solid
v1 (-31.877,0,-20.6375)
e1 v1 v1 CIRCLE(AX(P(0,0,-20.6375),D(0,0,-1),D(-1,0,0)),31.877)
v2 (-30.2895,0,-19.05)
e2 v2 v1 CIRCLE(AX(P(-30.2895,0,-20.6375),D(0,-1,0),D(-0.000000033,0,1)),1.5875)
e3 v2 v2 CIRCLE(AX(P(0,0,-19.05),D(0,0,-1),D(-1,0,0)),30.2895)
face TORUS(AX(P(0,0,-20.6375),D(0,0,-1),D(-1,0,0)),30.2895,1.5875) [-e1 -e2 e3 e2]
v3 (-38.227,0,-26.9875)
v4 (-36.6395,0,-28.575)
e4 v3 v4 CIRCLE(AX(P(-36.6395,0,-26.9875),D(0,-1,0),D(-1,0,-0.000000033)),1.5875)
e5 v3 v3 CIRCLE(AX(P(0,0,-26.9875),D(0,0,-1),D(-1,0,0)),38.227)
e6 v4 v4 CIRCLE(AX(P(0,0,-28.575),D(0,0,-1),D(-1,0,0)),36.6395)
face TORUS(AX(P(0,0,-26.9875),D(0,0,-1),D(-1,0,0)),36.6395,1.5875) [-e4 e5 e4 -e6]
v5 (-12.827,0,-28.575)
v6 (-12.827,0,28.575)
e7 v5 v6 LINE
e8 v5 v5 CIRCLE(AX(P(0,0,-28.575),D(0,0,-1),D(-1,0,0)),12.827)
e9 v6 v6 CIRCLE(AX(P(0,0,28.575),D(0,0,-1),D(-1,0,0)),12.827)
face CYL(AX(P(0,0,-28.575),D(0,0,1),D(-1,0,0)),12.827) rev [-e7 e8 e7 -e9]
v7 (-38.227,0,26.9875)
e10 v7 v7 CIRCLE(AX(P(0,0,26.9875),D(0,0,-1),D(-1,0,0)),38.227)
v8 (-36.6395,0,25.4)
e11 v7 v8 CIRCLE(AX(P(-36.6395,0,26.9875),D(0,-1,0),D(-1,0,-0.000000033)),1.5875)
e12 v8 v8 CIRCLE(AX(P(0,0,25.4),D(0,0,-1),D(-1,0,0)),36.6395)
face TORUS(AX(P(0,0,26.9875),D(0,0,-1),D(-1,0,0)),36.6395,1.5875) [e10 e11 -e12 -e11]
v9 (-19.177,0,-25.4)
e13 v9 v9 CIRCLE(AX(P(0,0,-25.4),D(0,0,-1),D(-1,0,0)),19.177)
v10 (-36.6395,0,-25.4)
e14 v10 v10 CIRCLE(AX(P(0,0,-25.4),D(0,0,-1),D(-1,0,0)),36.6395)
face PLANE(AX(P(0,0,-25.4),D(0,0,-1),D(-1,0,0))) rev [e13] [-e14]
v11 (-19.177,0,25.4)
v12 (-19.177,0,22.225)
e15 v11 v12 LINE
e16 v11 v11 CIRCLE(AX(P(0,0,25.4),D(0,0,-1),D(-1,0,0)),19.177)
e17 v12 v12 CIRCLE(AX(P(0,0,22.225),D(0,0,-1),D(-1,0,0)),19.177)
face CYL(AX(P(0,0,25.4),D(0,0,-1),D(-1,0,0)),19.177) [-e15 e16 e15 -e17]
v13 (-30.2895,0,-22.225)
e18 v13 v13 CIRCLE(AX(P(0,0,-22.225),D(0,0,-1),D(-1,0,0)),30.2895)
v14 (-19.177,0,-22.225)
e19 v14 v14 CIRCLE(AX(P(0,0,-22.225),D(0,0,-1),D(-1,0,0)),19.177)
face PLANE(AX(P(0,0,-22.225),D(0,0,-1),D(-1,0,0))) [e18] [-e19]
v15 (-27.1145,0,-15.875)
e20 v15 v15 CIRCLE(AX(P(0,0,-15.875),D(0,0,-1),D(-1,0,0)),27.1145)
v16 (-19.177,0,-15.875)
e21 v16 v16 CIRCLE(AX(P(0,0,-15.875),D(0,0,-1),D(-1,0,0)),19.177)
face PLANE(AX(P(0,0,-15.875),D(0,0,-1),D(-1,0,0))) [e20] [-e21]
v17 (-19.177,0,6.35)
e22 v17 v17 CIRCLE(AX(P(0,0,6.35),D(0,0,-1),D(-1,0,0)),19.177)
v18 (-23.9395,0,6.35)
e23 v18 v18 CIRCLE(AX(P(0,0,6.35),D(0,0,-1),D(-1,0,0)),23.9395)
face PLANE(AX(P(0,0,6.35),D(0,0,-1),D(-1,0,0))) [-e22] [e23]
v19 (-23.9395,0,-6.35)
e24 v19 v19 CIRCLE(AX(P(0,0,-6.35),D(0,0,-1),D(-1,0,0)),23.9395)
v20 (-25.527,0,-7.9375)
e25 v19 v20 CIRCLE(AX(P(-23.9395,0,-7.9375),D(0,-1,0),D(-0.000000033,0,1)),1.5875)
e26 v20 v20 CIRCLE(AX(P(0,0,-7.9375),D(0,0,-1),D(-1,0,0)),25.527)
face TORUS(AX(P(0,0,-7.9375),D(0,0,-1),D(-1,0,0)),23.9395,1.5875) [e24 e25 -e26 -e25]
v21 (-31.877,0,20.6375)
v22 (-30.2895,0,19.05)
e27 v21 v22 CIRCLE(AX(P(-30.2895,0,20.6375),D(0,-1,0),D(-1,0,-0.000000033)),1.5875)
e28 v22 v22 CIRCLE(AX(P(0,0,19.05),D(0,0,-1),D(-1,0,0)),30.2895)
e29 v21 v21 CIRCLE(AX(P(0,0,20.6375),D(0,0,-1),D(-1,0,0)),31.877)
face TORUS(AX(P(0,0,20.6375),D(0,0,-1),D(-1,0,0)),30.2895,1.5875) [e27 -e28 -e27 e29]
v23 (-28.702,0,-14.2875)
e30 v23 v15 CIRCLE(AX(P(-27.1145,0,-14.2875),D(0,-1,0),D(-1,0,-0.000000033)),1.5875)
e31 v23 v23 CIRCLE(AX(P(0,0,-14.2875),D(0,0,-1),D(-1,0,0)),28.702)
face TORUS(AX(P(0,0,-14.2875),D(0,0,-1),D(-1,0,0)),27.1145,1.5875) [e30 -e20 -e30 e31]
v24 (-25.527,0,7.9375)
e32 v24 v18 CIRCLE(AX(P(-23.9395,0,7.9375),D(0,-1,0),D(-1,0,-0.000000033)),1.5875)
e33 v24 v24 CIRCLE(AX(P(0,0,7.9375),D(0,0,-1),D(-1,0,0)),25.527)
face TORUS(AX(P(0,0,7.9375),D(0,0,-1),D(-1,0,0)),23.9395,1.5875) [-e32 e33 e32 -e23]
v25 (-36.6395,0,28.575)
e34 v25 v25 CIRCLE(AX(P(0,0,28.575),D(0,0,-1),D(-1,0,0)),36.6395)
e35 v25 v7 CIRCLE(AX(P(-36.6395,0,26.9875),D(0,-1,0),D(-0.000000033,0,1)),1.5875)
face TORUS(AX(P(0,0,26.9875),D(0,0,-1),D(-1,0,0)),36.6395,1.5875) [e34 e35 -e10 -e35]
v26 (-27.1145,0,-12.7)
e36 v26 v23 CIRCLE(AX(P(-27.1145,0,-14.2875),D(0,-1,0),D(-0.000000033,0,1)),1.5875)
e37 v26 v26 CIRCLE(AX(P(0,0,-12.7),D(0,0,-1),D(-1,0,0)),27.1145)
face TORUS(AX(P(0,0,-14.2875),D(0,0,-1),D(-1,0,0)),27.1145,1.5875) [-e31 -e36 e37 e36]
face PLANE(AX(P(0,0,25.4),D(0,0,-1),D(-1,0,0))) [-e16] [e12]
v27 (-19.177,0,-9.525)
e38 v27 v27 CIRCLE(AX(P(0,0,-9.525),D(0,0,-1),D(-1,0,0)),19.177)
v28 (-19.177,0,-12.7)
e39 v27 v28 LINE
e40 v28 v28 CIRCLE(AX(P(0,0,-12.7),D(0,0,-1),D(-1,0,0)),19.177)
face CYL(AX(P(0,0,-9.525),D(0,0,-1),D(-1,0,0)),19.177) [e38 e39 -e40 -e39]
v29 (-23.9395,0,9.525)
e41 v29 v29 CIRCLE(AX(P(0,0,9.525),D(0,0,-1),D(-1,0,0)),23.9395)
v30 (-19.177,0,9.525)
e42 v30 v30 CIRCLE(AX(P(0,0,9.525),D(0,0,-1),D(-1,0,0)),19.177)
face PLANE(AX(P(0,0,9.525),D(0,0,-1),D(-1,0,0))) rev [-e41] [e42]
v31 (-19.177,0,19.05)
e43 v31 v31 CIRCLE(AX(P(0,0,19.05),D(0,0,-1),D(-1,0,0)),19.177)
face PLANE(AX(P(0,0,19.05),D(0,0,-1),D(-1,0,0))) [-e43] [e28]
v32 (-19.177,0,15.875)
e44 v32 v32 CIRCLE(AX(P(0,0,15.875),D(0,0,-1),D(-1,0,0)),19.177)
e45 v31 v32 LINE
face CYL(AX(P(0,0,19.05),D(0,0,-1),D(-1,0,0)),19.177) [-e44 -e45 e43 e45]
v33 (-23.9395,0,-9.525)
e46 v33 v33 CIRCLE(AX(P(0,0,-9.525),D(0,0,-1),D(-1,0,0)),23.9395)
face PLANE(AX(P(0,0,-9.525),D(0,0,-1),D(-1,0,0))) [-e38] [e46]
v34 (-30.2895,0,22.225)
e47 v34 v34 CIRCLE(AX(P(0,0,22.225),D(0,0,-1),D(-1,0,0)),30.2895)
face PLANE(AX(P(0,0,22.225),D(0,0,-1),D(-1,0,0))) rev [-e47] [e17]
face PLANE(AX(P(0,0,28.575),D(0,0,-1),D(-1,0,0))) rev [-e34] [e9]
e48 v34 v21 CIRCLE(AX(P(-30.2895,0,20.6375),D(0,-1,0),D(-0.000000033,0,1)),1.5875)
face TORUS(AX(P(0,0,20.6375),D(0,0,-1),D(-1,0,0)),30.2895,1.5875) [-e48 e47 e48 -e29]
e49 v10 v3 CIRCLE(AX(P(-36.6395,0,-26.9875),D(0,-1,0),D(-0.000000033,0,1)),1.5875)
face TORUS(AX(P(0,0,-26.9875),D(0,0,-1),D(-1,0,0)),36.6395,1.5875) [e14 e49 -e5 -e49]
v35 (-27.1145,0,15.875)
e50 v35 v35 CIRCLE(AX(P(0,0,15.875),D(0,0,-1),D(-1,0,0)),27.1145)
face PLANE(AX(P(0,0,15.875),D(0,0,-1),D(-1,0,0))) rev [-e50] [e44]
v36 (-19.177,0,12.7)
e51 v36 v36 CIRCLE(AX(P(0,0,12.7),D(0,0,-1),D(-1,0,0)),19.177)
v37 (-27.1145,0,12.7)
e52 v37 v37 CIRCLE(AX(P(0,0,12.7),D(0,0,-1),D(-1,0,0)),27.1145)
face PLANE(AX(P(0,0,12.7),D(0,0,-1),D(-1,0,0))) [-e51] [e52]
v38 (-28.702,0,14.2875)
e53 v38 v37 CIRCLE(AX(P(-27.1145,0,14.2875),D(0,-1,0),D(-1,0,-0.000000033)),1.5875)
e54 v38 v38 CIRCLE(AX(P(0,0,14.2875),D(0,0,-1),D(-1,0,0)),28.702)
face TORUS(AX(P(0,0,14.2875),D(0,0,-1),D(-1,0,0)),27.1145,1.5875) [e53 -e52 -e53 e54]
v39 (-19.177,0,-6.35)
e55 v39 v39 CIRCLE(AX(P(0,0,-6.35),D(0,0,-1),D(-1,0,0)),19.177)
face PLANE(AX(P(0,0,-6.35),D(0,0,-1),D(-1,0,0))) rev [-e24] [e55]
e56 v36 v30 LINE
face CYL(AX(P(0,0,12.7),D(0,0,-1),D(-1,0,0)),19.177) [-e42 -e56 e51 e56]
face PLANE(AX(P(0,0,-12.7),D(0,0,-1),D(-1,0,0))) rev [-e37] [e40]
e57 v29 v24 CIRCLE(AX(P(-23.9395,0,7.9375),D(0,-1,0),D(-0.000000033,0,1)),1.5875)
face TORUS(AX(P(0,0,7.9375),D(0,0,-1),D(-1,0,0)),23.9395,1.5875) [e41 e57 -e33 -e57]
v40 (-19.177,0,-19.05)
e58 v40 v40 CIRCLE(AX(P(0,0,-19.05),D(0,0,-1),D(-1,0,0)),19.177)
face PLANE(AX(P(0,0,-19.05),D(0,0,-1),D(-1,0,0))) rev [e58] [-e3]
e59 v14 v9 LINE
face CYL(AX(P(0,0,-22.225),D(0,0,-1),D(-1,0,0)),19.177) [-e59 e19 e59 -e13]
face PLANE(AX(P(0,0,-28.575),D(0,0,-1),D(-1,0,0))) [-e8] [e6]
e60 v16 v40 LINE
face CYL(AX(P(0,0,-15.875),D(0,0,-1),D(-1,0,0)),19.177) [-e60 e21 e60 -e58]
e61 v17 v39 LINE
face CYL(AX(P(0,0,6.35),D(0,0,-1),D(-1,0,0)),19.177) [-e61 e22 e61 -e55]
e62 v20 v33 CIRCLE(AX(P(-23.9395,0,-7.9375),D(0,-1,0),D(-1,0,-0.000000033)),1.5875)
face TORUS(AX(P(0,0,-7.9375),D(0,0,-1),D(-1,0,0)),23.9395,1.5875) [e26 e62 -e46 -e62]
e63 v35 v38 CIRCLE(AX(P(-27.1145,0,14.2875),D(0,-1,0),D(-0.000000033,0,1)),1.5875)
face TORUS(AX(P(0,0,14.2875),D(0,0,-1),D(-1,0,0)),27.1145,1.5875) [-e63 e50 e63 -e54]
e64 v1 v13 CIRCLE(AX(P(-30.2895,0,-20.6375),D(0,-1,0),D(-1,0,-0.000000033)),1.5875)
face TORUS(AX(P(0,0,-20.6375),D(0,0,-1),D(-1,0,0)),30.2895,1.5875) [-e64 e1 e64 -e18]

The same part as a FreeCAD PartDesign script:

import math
import FreeCAD as App
import Part
import Sketcher
from FreeCAD import Vector
Q = App.Units.Quantity

doc = App.newDocument("Part")
body = doc.addObject("PartDesign::Body", "Body")

sketch1 = body.newObject("Sketcher::SketchObject", "Sketch")
sketch1.AttachmentSupport = (doc.getObject("XZ_Plane"), [""])
sketch1.MapMode = "FlatFace"
sketch1.addGeometry(Part.LineSegment(Vector(-36.6395, -28.575, 0), Vector(-12.827, -28.575, 0)), False)
sketch1.addGeometry(Part.LineSegment(Vector(-12.827, -28.575, 0), Vector(-12.827, 28.575, 0)), False)
sketch1.addGeometry(Part.LineSegment(Vector(-12.827, 28.575, 0), Vector(-36.6395, 28.575, 0)), False)
sketch1.addGeometry(Part.ArcOfCircle(Part.Circle(Vector(-36.6395, 26.9875, 0), Vector(0, 0, 1), 1.5875), math.radians(90.000002), math.radians(179.999998)), False)
sketch1.addGeometry(Part.ArcOfCircle(Part.Circle(Vector(-36.6395, 26.9875, 0), Vector(0, 0, 1), 1.5875), math.radians(-179.999998), math.radians(-90.000002)), False)
sketch1.addGeometry(Part.LineSegment(Vector(-36.6395, 25.4, 0), Vector(-19.177, 25.4, 0)), False)
sketch1.addGeometry(Part.LineSegment(Vector(-19.177, 25.4, 0), Vector(-19.177, 22.225, 0)), False)
sketch1.addGeometry(Part.LineSegment(Vector(-19.177, 22.225, 0), Vector(-30.2895, 22.225, 0)), False)
sketch1.addGeometry(Part.ArcOfCircle(Part.Circle(Vector(-30.2895, 20.6375, 0), Vector(0, 0, 1), 1.5875), math.radians(90.000002), math.radians(179.999998)), False)
sketch1.addGeometry(Part.ArcOfCircle(Part.Circle(Vector(-30.2895, 20.6375, 0), Vector(0, 0, 1), 1.5875), math.radians(-179.999998), math.radians(-90.000002)), False)
sketch1.addGeometry(Part.LineSegment(Vector(-30.2895, 19.05, 0), Vector(-19.177, 19.05, 0)), False)
sketch1.addGeometry(Part.LineSegment(Vector(-19.177, 19.05, 0), Vector(-19.177, 15.875, 0)), False)
sketch1.addGeometry(Part.LineSegment(Vector(-19.177, 15.875, 0), Vector(-27.1145, 15.875, 0)), False)
sketch1.addGeometry(Part.ArcOfCircle(Part.Circle(Vector(-27.1145, 14.2875, 0), Vector(0, 0, 1), 1.5875), math.radians(90.000002), math.radians(179.999998)), False)
sketch1.addGeometry(Part.ArcOfCircle(Part.Circle(Vector(-27.1145, 14.2875, 0), Vector(0, 0, 1), 1.5875), math.radians(-179.999998), math.radians(-90.000002)), False)
sketch1.addGeometry(Part.LineSegment(Vector(-27.1145, 12.7, 0), Vector(-19.177, 12.7, 0)), False)
sketch1.addGeometry(Part.LineSegment(Vector(-19.177, 12.7, 0), Vector(-19.177, 9.525, 0)), False)
sketch1.addGeometry(Part.LineSegment(Vector(-19.177, 9.525, 0), Vector(-23.9395, 9.525, 0)), False)
sketch1.addGeometry(Part.ArcOfCircle(Part.Circle(Vector(-23.9395, 7.9375, 0), Vector(0, 0, 1), 1.5875), math.radians(90.000002), math.radians(179.999998)), False)
sketch1.addGeometry(Part.ArcOfCircle(Part.Circle(Vector(-23.9395, 7.9375, 0), Vector(0, 0, 1), 1.5875), math.radians(-179.999998), math.radians(-90.000002)), False)
sketch1.addGeometry(Part.LineSegment(Vector(-23.9395, 6.35, 0), Vector(-19.177, 6.35, 0)), False)
sketch1.addGeometry(Part.LineSegment(Vector(-19.177, 6.35, 0), Vector(-19.177, -6.35, 0)), False)
sketch1.addGeometry(Part.LineSegment(Vector(-19.177, -6.35, 0), Vector(-23.9395, -6.35, 0)), False)
sketch1.addGeometry(Part.ArcOfCircle(Part.Circle(Vector(-23.9395, -7.9375, 0), Vector(0, 0, 1), 1.5875), math.radians(90.000002), math.radians(179.999998)), False)
sketch1.addGeometry(Part.ArcOfCircle(Part.Circle(Vector(-23.9395, -7.9375, 0), Vector(0, 0, 1), 1.5875), math.radians(-179.999998), math.radians(-90.000002)), False)
sketch1.addGeometry(Part.LineSegment(Vector(-23.9395, -9.525, 0), Vector(-19.177, -9.525, 0)), False)
sketch1.addGeometry(Part.LineSegment(Vector(-19.177, -9.525, 0), Vector(-19.177, -12.7, 0)), False)
sketch1.addGeometry(Part.LineSegment(Vector(-19.177, -12.7, 0), Vector(-27.1145, -12.7, 0)), False)
sketch1.addGeometry(Part.ArcOfCircle(Part.Circle(Vector(-27.1145, -14.2875, 0), Vector(0, 0, 1), 1.5875), math.radians(90.000002), math.radians(179.999998)), False)
sketch1.addGeometry(Part.ArcOfCircle(Part.Circle(Vector(-27.1145, -14.2875, 0), Vector(0, 0, 1), 1.5875), math.radians(-179.999998), math.radians(-90.000002)), False)
sketch1.addGeometry(Part.LineSegment(Vector(-27.1145, -15.875, 0), Vector(-19.177, -15.875, 0)), False)
sketch1.addGeometry(Part.LineSegment(Vector(-19.177, -15.875, 0), Vector(-19.177, -19.05, 0)), False)
sketch1.addGeometry(Part.LineSegment(Vector(-19.177, -19.05, 0), Vector(-30.2895, -19.05, 0)), False)
sketch1.addGeometry(Part.ArcOfCircle(Part.Circle(Vector(-30.2895, -20.6375, 0), Vector(0, 0, 1), 1.5875), math.radians(90.000002), math.radians(179.999998)), False)
sketch1.addGeometry(Part.ArcOfCircle(Part.Circle(Vector(-30.2895, -20.6375, 0), Vector(0, 0, 1), 1.5875), math.radians(-179.999998), math.radians(-90.000002)), False)
sketch1.addGeometry(Part.LineSegment(Vector(-30.2895, -22.225, 0), Vector(-19.177, -22.225, 0)), False)
sketch1.addGeometry(Part.LineSegment(Vector(-19.177, -22.225, 0), Vector(-19.177, -25.4, 0)), False)
sketch1.addGeometry(Part.LineSegment(Vector(-19.177, -25.4, 0), Vector(-36.6395, -25.4, 0)), False)
sketch1.addGeometry(Part.ArcOfCircle(Part.Circle(Vector(-36.6395, -26.9875, 0), Vector(0, 0, 1), 1.5875), math.radians(90.000002), math.radians(179.999998)), False)
sketch1.addGeometry(Part.ArcOfCircle(Part.Circle(Vector(-36.6395, -26.9875, 0), Vector(0, 0, 1), 1.5875), math.radians(-179.999998), math.radians(-90.000002)), False)
sketch1.addConstraint(Sketcher.Constraint("Coincident", 0, 2, 1, 1))
sketch1.addConstraint(Sketcher.Constraint("Coincident", 1, 2, 2, 1))
sketch1.addConstraint(Sketcher.Constraint("Tangent", 2, 2, 3, 1))
sketch1.addConstraint(Sketcher.Constraint("Tangent", 3, 2, 4, 1))
sketch1.addConstraint(Sketcher.Constraint("Tangent", 4, 2, 5, 1))
sketch1.addConstraint(Sketcher.Constraint("Coincident", 5, 2, 6, 1))
sketch1.addConstraint(Sketcher.Constraint("Coincident", 6, 2, 7, 1))
sketch1.addConstraint(Sketcher.Constraint("Tangent", 7, 2, 8, 1))
sketch1.addConstraint(Sketcher.Constraint("Tangent", 8, 2, 9, 1))
sketch1.addConstraint(Sketcher.Constraint("Tangent", 9, 2, 10, 1))
sketch1.addConstraint(Sketcher.Constraint("Coincident", 10, 2, 11, 1))
sketch1.addConstraint(Sketcher.Constraint("Coincident", 11, 2, 12, 1))
sketch1.addConstraint(Sketcher.Constraint("Tangent", 12, 2, 13, 1))
sketch1.addConstraint(Sketcher.Constraint("Tangent", 13, 2, 14, 1))
sketch1.addConstraint(Sketcher.Constraint("Tangent", 14, 2, 15, 1))
sketch1.addConstraint(Sketcher.Constraint("Coincident", 15, 2, 16, 1))
sketch1.addConstraint(Sketcher.Constraint("Coincident", 16, 2, 17, 1))
sketch1.addConstraint(Sketcher.Constraint("Tangent", 17, 2, 18, 1))
sketch1.addConstraint(Sketcher.Constraint("Tangent", 18, 2, 19, 1))
sketch1.addConstraint(Sketcher.Constraint("Tangent", 19, 2, 20, 1))
sketch1.addConstraint(Sketcher.Constraint("Coincident", 20, 2, 21, 1))
sketch1.addConstraint(Sketcher.Constraint("Coincident", 21, 2, 22, 1))
sketch1.addConstraint(Sketcher.Constraint("Tangent", 22, 2, 23, 1))
sketch1.addConstraint(Sketcher.Constraint("Tangent", 23, 2, 24, 1))
sketch1.addConstraint(Sketcher.Constraint("Tangent", 24, 2, 25, 1))
sketch1.addConstraint(Sketcher.Constraint("Coincident", 25, 2, 26, 1))
sketch1.addConstraint(Sketcher.Constraint("Coincident", 26, 2, 27, 1))
sketch1.addConstraint(Sketcher.Constraint("Tangent", 27, 2, 28, 1))
sketch1.addConstraint(Sketcher.Constraint("Tangent", 28, 2, 29, 1))
sketch1.addConstraint(Sketcher.Constraint("Tangent", 29, 2, 30, 1))
sketch1.addConstraint(Sketcher.Constraint("Coincident", 30, 2, 31, 1))
sketch1.addConstraint(Sketcher.Constraint("Coincident", 31, 2, 32, 1))
sketch1.addConstraint(Sketcher.Constraint("Tangent", 32, 2, 33, 1))
sketch1.addConstraint(Sketcher.Constraint("Tangent", 33, 2, 34, 1))
sketch1.addConstraint(Sketcher.Constraint("Tangent", 34, 2, 35, 1))
sketch1.addConstraint(Sketcher.Constraint("Coincident", 35, 2, 36, 1))
sketch1.addConstraint(Sketcher.Constraint("Coincident", 36, 2, 37, 1))
sketch1.addConstraint(Sketcher.Constraint("Tangent", 37, 2, 38, 1))
sketch1.addConstraint(Sketcher.Constraint("Tangent", 38, 2, 39, 1))
sketch1.addConstraint(Sketcher.Constraint("Tangent", 39, 2, 0, 1))
sketch1.addConstraint(Sketcher.Constraint("Horizontal", 0))
sketch1.addConstraint(Sketcher.Constraint("Vertical", 1))
sketch1.addConstraint(Sketcher.Constraint("Horizontal", 2))
sketch1.addConstraint(Sketcher.Constraint("Horizontal", 5))
sketch1.addConstraint(Sketcher.Constraint("Vertical", 6))
sketch1.addConstraint(Sketcher.Constraint("Horizontal", 7))
sketch1.addConstraint(Sketcher.Constraint("Horizontal", 10))
sketch1.addConstraint(Sketcher.Constraint("Vertical", 11))
sketch1.addConstraint(Sketcher.Constraint("Horizontal", 12))
sketch1.addConstraint(Sketcher.Constraint("Horizontal", 15))
sketch1.addConstraint(Sketcher.Constraint("Vertical", 16))
sketch1.addConstraint(Sketcher.Constraint("Horizontal", 17))
sketch1.addConstraint(Sketcher.Constraint("Horizontal", 20))
sketch1.addConstraint(Sketcher.Constraint("Vertical", 21))
sketch1.addConstraint(Sketcher.Constraint("Horizontal", 22))
sketch1.addConstraint(Sketcher.Constraint("Horizontal", 25))
sketch1.addConstraint(Sketcher.Constraint("Vertical", 26))
sketch1.addConstraint(Sketcher.Constraint("Horizontal", 27))
sketch1.addConstraint(Sketcher.Constraint("Horizontal", 30))
sketch1.addConstraint(Sketcher.Constraint("Vertical", 31))
sketch1.addConstraint(Sketcher.Constraint("Horizontal", 32))
sketch1.addConstraint(Sketcher.Constraint("Horizontal", 35))
sketch1.addConstraint(Sketcher.Constraint("Vertical", 36))
sketch1.addConstraint(Sketcher.Constraint("Horizontal", 37))
sketch1.addConstraint(Sketcher.Constraint("Equal", 3, 4))
sketch1.addConstraint(Sketcher.Constraint("Equal", 4, 8))
sketch1.addConstraint(Sketcher.Constraint("Equal", 8, 9))
sketch1.addConstraint(Sketcher.Constraint("Equal", 9, 13))
sketch1.addConstraint(Sketcher.Constraint("Equal", 13, 14))
sketch1.addConstraint(Sketcher.Constraint("Equal", 14, 18))
sketch1.addConstraint(Sketcher.Constraint("Equal", 18, 19))
sketch1.addConstraint(Sketcher.Constraint("Equal", 19, 23))
sketch1.addConstraint(Sketcher.Constraint("Equal", 23, 24))
sketch1.addConstraint(Sketcher.Constraint("Equal", 24, 28))
sketch1.addConstraint(Sketcher.Constraint("Equal", 28, 29))
sketch1.addConstraint(Sketcher.Constraint("Equal", 29, 33))
sketch1.addConstraint(Sketcher.Constraint("Equal", 33, 34))
sketch1.addConstraint(Sketcher.Constraint("Equal", 34, 38))
sketch1.addConstraint(Sketcher.Constraint("Equal", 38, 39))
sketch1.addConstraint(Sketcher.Constraint("Symmetric", 18, 3, 23, 3, -1))
sketch1.addConstraint(Sketcher.Constraint("Symmetric", 13, 3, 28, 3, -1))
sketch1.addConstraint(Sketcher.Constraint("Symmetric", 8, 3, 33, 3, -1))
sketch1.addConstraint(Sketcher.Constraint("Symmetric", 3, 3, 38, 3, -1))
sketch1.addConstraint(Sketcher.Constraint("Horizontal", 4, 3, 3, 2))
sketch1.addConstraint(Sketcher.Constraint("Horizontal", 9, 3, 8, 2))
sketch1.addConstraint(Sketcher.Constraint("Horizontal", 14, 3, 13, 2))
sketch1.addConstraint(Sketcher.Constraint("Horizontal", 19, 3, 18, 2))
sketch1.addConstraint(Sketcher.Constraint("Horizontal", 24, 3, 23, 2))
sketch1.addConstraint(Sketcher.Constraint("Horizontal", 29, 3, 28, 2))
sketch1.addConstraint(Sketcher.Constraint("Horizontal", 34, 3, 33, 2))
sketch1.addConstraint(Sketcher.Constraint("Horizontal", 39, 3, 38, 2))
sketch1.addConstraint(Sketcher.Constraint("Vertical", 6, 2, 10, 2))
sketch1.addConstraint(Sketcher.Constraint("Vertical", 11, 2, 15, 2))
sketch1.addConstraint(Sketcher.Constraint("Vertical", 16, 2, 20, 2))
sketch1.addConstraint(Sketcher.Constraint("Vertical", 21, 2, 25, 2))
sketch1.addConstraint(Sketcher.Constraint("Vertical", 26, 2, 30, 2))
sketch1.addConstraint(Sketcher.Constraint("Vertical", 31, 2, 35, 2))
sketch1.addConstraint(Sketcher.Constraint("Equal", 6, 11))
sketch1.addConstraint(Sketcher.Constraint("Equal", 11, 16))
sketch1.addConstraint(Sketcher.Constraint("DistanceY", 21, 2, 21, 1, Q("0.5 in")))
sketch1.addConstraint(Sketcher.Constraint("DistanceY", -1, 1, 4, 2, Q("1 in")))
sketch1.addConstraint(Sketcher.Constraint("Radius", 3, Q("0.0625 in")))
sketch1.addConstraint(Sketcher.Constraint("DistanceX", 3, 3, 18, 3, Q("0.5 in")))
sketch1.addConstraint(Sketcher.Constraint("DistanceX", 0, 1, 0, 2, Q("0.9375 in")))
sketch1.addConstraint(Sketcher.Constraint("DistanceX", 5, 1, 5, 2, Q("0.6875 in")))
sketch1.addConstraint(Sketcher.Constraint("DistanceX", 7, 2, 7, 1, Q("0.4375 in")))
sketch1.addConstraint(Sketcher.Constraint("DistanceX", 12, 2, 12, 1, Q("0.3125 in")))
sketch1.addConstraint(Sketcher.Constraint("DistanceX", 13, 2, -1, 1, Q("1.13 in")))
revolution = body.newObject("PartDesign::Revolution", "Revolution")
revolution.Profile = sketch1
revolution.ReferenceAxis = (sketch1, ["V_Axis"])
revolution.Angle = 360

doc.recompute()
